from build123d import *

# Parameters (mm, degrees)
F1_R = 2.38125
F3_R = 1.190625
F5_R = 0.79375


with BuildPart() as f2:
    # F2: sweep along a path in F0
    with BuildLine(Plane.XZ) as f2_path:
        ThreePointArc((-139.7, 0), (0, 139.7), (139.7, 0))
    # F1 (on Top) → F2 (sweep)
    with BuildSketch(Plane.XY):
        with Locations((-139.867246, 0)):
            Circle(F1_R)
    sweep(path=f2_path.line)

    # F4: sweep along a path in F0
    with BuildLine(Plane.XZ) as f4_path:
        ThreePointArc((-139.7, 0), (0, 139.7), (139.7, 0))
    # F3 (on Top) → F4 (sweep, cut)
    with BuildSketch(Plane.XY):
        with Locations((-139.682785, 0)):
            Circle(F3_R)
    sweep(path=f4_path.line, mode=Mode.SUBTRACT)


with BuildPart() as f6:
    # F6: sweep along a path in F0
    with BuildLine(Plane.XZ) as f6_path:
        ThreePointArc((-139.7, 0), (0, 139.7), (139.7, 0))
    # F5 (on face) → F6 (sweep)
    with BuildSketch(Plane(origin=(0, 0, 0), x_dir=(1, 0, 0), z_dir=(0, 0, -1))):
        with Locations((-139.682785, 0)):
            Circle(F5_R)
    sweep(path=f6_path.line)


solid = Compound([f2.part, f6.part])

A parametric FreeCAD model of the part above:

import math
import FreeCAD as App
import Part
import Sketcher
Q = App.Units.Quantity

doc = App.newDocument("Part")
body = doc.addObject("PartDesign::Body", "Body")

# Sketch on XY plane
sketch1 = doc.addObject("Sketcher::SketchObject", "Sketch")
body.addObject(sketch1)
sketch1.AttachmentSupport = (doc.XY_Plane, [""])
sketch1.MapMode = "FlatFace"
sketch1.addGeometry(Part.Circle(App.Vector(-139.9, 0, 0), App.Vector(0, 0, 1), 2.4), False)
sketch1.addConstraint([
    Sketcher.Constraint("PointOnObject", 0, 3, -1),
    Sketcher.Constraint("Diameter", 0, Q("0.1875 in")),
    Sketcher.Constraint("DistanceX", 0, 3, -1, 1, 139.867246),
])

# Sketch on XZ plane
sketch2 = doc.addObject("Sketcher::SketchObject", "Sketch001")
body.addObject(sketch2)
sketch2.AttachmentSupport = (doc.XZ_Plane, [""])
sketch2.MapMode = "FlatFace"
sketch2.addGeometry(Part.ArcOfCircle(Part.Circle(App.Vector(0, 0, 0), App.Vector(0, 0, 1), 140), math.radians(0), math.radians(180)), False)
sketch2.addConstraint([
    Sketcher.Constraint("Coincident", 0, 3, -1, 1),
    Sketcher.Constraint("PointOnObject", 0, 1, -1),
    Sketcher.Constraint("PointOnObject", 0, 2, -1),
    Sketcher.Constraint("Radius", 0, Q("5.5 in")),
])
doc.recompute()

additivepipe = doc.addObject("PartDesign::AdditivePipe", "AdditivePipe")
body.addObject(additivepipe)
additivepipe.Profile = sketch1
additivepipe.Spine = (sketch2, ["Edge1"])

# Sketch on XY plane
sketch3 = doc.addObject("Sketcher::SketchObject", "Sketch002")
body.addObject(sketch3)
sketch3.AttachmentSupport = (doc.XY_Plane, [""])
sketch3.MapMode = "FlatFace"
sketch3.addGeometry(Part.Circle(App.Vector(-139.7, 0, 0), App.Vector(0, 0, 1), 1.2), False)
sketch3.addConstraint([
    Sketcher.Constraint("PointOnObject", 0, 3, -1),
    Sketcher.Constraint("Diameter", 0, Q("0.09375 in")),
    Sketcher.Constraint("DistanceX", 0, 3, -1, 1, 139.682785),
])

# Sketch on XZ plane
sketch4 = doc.addObject("Sketcher::SketchObject", "Sketch003")
body.addObject(sketch4)
sketch4.AttachmentSupport = (doc.XZ_Plane, [""])
sketch4.MapMode = "FlatFace"
sketch4.addGeometry(Part.ArcOfCircle(Part.Circle(App.Vector(0, 0, 0), App.Vector(0, 0, 1), 140), math.radians(0), math.radians(180)), False)
sketch4.addConstraint([
    Sketcher.Constraint("Coincident", 0, 3, -1, 1),
    Sketcher.Constraint("PointOnObject", 0, 1, -1),
    Sketcher.Constraint("PointOnObject", 0, 2, -1),
    Sketcher.Constraint("Radius", 0, Q("5.5 in")),
])
doc.recompute()

subtractivepipe = doc.addObject("PartDesign::SubtractivePipe", "SubtractivePipe")
body.addObject(subtractivepipe)
subtractivepipe.Profile = sketch3
subtractivepipe.Spine = (sketch4, ["Edge1"])
body2 = doc.addObject("PartDesign::Body", "Body001")

# Sketch on XY plane
sketch5 = doc.addObject("Sketcher::SketchObject", "Sketch004")
body2.addObject(sketch5)
sketch5.AttachmentSupport = (doc.getObject("XY_Plane001"), [""])
sketch5.MapMode = "FlatFace"
sketch5.addGeometry(Part.Circle(App.Vector(-139.7, 0, 0), App.Vector(0, 0, 1), 0.8), False)
sketch5.addConstraint([
    Sketcher.Constraint("PointOnObject", 0, 3, -1),
    Sketcher.Constraint("Diameter", 0, Q("0.0625 in")),
    Sketcher.Constraint("DistanceX", 0, 3, -1, 1, 139.682785),
])

# Sketch on XZ plane
sketch6 = doc.addObject("Sketcher::SketchObject", "Sketch005")
body2.addObject(sketch6)
sketch6.AttachmentSupport = (doc.getObject("XZ_Plane001"), [""])
sketch6.MapMode = "FlatFace"
sketch6.addGeometry(Part.ArcOfCircle(Part.Circle(App.Vector(0, 0, 0), App.Vector(0, 0, 1), 140), math.radians(0), math.radians(180)), False)
sketch6.addConstraint([
    Sketcher.Constraint("Coincident", 0, 3, -1, 1),
    Sketcher.Constraint("PointOnObject", 0, 1, -1),
    Sketcher.Constraint("PointOnObject", 0, 2, -1),
    Sketcher.Constraint("Radius", 0, Q("5.5 in")),
])
doc.recompute()

additivepipe2 = doc.addObject("PartDesign::AdditivePipe", "AdditivePipe001")
body2.addObject(additivepipe2)
additivepipe2.Profile = sketch5
additivepipe2.Spine = (sketch6, ["Edge1"])

doc.recompute()
